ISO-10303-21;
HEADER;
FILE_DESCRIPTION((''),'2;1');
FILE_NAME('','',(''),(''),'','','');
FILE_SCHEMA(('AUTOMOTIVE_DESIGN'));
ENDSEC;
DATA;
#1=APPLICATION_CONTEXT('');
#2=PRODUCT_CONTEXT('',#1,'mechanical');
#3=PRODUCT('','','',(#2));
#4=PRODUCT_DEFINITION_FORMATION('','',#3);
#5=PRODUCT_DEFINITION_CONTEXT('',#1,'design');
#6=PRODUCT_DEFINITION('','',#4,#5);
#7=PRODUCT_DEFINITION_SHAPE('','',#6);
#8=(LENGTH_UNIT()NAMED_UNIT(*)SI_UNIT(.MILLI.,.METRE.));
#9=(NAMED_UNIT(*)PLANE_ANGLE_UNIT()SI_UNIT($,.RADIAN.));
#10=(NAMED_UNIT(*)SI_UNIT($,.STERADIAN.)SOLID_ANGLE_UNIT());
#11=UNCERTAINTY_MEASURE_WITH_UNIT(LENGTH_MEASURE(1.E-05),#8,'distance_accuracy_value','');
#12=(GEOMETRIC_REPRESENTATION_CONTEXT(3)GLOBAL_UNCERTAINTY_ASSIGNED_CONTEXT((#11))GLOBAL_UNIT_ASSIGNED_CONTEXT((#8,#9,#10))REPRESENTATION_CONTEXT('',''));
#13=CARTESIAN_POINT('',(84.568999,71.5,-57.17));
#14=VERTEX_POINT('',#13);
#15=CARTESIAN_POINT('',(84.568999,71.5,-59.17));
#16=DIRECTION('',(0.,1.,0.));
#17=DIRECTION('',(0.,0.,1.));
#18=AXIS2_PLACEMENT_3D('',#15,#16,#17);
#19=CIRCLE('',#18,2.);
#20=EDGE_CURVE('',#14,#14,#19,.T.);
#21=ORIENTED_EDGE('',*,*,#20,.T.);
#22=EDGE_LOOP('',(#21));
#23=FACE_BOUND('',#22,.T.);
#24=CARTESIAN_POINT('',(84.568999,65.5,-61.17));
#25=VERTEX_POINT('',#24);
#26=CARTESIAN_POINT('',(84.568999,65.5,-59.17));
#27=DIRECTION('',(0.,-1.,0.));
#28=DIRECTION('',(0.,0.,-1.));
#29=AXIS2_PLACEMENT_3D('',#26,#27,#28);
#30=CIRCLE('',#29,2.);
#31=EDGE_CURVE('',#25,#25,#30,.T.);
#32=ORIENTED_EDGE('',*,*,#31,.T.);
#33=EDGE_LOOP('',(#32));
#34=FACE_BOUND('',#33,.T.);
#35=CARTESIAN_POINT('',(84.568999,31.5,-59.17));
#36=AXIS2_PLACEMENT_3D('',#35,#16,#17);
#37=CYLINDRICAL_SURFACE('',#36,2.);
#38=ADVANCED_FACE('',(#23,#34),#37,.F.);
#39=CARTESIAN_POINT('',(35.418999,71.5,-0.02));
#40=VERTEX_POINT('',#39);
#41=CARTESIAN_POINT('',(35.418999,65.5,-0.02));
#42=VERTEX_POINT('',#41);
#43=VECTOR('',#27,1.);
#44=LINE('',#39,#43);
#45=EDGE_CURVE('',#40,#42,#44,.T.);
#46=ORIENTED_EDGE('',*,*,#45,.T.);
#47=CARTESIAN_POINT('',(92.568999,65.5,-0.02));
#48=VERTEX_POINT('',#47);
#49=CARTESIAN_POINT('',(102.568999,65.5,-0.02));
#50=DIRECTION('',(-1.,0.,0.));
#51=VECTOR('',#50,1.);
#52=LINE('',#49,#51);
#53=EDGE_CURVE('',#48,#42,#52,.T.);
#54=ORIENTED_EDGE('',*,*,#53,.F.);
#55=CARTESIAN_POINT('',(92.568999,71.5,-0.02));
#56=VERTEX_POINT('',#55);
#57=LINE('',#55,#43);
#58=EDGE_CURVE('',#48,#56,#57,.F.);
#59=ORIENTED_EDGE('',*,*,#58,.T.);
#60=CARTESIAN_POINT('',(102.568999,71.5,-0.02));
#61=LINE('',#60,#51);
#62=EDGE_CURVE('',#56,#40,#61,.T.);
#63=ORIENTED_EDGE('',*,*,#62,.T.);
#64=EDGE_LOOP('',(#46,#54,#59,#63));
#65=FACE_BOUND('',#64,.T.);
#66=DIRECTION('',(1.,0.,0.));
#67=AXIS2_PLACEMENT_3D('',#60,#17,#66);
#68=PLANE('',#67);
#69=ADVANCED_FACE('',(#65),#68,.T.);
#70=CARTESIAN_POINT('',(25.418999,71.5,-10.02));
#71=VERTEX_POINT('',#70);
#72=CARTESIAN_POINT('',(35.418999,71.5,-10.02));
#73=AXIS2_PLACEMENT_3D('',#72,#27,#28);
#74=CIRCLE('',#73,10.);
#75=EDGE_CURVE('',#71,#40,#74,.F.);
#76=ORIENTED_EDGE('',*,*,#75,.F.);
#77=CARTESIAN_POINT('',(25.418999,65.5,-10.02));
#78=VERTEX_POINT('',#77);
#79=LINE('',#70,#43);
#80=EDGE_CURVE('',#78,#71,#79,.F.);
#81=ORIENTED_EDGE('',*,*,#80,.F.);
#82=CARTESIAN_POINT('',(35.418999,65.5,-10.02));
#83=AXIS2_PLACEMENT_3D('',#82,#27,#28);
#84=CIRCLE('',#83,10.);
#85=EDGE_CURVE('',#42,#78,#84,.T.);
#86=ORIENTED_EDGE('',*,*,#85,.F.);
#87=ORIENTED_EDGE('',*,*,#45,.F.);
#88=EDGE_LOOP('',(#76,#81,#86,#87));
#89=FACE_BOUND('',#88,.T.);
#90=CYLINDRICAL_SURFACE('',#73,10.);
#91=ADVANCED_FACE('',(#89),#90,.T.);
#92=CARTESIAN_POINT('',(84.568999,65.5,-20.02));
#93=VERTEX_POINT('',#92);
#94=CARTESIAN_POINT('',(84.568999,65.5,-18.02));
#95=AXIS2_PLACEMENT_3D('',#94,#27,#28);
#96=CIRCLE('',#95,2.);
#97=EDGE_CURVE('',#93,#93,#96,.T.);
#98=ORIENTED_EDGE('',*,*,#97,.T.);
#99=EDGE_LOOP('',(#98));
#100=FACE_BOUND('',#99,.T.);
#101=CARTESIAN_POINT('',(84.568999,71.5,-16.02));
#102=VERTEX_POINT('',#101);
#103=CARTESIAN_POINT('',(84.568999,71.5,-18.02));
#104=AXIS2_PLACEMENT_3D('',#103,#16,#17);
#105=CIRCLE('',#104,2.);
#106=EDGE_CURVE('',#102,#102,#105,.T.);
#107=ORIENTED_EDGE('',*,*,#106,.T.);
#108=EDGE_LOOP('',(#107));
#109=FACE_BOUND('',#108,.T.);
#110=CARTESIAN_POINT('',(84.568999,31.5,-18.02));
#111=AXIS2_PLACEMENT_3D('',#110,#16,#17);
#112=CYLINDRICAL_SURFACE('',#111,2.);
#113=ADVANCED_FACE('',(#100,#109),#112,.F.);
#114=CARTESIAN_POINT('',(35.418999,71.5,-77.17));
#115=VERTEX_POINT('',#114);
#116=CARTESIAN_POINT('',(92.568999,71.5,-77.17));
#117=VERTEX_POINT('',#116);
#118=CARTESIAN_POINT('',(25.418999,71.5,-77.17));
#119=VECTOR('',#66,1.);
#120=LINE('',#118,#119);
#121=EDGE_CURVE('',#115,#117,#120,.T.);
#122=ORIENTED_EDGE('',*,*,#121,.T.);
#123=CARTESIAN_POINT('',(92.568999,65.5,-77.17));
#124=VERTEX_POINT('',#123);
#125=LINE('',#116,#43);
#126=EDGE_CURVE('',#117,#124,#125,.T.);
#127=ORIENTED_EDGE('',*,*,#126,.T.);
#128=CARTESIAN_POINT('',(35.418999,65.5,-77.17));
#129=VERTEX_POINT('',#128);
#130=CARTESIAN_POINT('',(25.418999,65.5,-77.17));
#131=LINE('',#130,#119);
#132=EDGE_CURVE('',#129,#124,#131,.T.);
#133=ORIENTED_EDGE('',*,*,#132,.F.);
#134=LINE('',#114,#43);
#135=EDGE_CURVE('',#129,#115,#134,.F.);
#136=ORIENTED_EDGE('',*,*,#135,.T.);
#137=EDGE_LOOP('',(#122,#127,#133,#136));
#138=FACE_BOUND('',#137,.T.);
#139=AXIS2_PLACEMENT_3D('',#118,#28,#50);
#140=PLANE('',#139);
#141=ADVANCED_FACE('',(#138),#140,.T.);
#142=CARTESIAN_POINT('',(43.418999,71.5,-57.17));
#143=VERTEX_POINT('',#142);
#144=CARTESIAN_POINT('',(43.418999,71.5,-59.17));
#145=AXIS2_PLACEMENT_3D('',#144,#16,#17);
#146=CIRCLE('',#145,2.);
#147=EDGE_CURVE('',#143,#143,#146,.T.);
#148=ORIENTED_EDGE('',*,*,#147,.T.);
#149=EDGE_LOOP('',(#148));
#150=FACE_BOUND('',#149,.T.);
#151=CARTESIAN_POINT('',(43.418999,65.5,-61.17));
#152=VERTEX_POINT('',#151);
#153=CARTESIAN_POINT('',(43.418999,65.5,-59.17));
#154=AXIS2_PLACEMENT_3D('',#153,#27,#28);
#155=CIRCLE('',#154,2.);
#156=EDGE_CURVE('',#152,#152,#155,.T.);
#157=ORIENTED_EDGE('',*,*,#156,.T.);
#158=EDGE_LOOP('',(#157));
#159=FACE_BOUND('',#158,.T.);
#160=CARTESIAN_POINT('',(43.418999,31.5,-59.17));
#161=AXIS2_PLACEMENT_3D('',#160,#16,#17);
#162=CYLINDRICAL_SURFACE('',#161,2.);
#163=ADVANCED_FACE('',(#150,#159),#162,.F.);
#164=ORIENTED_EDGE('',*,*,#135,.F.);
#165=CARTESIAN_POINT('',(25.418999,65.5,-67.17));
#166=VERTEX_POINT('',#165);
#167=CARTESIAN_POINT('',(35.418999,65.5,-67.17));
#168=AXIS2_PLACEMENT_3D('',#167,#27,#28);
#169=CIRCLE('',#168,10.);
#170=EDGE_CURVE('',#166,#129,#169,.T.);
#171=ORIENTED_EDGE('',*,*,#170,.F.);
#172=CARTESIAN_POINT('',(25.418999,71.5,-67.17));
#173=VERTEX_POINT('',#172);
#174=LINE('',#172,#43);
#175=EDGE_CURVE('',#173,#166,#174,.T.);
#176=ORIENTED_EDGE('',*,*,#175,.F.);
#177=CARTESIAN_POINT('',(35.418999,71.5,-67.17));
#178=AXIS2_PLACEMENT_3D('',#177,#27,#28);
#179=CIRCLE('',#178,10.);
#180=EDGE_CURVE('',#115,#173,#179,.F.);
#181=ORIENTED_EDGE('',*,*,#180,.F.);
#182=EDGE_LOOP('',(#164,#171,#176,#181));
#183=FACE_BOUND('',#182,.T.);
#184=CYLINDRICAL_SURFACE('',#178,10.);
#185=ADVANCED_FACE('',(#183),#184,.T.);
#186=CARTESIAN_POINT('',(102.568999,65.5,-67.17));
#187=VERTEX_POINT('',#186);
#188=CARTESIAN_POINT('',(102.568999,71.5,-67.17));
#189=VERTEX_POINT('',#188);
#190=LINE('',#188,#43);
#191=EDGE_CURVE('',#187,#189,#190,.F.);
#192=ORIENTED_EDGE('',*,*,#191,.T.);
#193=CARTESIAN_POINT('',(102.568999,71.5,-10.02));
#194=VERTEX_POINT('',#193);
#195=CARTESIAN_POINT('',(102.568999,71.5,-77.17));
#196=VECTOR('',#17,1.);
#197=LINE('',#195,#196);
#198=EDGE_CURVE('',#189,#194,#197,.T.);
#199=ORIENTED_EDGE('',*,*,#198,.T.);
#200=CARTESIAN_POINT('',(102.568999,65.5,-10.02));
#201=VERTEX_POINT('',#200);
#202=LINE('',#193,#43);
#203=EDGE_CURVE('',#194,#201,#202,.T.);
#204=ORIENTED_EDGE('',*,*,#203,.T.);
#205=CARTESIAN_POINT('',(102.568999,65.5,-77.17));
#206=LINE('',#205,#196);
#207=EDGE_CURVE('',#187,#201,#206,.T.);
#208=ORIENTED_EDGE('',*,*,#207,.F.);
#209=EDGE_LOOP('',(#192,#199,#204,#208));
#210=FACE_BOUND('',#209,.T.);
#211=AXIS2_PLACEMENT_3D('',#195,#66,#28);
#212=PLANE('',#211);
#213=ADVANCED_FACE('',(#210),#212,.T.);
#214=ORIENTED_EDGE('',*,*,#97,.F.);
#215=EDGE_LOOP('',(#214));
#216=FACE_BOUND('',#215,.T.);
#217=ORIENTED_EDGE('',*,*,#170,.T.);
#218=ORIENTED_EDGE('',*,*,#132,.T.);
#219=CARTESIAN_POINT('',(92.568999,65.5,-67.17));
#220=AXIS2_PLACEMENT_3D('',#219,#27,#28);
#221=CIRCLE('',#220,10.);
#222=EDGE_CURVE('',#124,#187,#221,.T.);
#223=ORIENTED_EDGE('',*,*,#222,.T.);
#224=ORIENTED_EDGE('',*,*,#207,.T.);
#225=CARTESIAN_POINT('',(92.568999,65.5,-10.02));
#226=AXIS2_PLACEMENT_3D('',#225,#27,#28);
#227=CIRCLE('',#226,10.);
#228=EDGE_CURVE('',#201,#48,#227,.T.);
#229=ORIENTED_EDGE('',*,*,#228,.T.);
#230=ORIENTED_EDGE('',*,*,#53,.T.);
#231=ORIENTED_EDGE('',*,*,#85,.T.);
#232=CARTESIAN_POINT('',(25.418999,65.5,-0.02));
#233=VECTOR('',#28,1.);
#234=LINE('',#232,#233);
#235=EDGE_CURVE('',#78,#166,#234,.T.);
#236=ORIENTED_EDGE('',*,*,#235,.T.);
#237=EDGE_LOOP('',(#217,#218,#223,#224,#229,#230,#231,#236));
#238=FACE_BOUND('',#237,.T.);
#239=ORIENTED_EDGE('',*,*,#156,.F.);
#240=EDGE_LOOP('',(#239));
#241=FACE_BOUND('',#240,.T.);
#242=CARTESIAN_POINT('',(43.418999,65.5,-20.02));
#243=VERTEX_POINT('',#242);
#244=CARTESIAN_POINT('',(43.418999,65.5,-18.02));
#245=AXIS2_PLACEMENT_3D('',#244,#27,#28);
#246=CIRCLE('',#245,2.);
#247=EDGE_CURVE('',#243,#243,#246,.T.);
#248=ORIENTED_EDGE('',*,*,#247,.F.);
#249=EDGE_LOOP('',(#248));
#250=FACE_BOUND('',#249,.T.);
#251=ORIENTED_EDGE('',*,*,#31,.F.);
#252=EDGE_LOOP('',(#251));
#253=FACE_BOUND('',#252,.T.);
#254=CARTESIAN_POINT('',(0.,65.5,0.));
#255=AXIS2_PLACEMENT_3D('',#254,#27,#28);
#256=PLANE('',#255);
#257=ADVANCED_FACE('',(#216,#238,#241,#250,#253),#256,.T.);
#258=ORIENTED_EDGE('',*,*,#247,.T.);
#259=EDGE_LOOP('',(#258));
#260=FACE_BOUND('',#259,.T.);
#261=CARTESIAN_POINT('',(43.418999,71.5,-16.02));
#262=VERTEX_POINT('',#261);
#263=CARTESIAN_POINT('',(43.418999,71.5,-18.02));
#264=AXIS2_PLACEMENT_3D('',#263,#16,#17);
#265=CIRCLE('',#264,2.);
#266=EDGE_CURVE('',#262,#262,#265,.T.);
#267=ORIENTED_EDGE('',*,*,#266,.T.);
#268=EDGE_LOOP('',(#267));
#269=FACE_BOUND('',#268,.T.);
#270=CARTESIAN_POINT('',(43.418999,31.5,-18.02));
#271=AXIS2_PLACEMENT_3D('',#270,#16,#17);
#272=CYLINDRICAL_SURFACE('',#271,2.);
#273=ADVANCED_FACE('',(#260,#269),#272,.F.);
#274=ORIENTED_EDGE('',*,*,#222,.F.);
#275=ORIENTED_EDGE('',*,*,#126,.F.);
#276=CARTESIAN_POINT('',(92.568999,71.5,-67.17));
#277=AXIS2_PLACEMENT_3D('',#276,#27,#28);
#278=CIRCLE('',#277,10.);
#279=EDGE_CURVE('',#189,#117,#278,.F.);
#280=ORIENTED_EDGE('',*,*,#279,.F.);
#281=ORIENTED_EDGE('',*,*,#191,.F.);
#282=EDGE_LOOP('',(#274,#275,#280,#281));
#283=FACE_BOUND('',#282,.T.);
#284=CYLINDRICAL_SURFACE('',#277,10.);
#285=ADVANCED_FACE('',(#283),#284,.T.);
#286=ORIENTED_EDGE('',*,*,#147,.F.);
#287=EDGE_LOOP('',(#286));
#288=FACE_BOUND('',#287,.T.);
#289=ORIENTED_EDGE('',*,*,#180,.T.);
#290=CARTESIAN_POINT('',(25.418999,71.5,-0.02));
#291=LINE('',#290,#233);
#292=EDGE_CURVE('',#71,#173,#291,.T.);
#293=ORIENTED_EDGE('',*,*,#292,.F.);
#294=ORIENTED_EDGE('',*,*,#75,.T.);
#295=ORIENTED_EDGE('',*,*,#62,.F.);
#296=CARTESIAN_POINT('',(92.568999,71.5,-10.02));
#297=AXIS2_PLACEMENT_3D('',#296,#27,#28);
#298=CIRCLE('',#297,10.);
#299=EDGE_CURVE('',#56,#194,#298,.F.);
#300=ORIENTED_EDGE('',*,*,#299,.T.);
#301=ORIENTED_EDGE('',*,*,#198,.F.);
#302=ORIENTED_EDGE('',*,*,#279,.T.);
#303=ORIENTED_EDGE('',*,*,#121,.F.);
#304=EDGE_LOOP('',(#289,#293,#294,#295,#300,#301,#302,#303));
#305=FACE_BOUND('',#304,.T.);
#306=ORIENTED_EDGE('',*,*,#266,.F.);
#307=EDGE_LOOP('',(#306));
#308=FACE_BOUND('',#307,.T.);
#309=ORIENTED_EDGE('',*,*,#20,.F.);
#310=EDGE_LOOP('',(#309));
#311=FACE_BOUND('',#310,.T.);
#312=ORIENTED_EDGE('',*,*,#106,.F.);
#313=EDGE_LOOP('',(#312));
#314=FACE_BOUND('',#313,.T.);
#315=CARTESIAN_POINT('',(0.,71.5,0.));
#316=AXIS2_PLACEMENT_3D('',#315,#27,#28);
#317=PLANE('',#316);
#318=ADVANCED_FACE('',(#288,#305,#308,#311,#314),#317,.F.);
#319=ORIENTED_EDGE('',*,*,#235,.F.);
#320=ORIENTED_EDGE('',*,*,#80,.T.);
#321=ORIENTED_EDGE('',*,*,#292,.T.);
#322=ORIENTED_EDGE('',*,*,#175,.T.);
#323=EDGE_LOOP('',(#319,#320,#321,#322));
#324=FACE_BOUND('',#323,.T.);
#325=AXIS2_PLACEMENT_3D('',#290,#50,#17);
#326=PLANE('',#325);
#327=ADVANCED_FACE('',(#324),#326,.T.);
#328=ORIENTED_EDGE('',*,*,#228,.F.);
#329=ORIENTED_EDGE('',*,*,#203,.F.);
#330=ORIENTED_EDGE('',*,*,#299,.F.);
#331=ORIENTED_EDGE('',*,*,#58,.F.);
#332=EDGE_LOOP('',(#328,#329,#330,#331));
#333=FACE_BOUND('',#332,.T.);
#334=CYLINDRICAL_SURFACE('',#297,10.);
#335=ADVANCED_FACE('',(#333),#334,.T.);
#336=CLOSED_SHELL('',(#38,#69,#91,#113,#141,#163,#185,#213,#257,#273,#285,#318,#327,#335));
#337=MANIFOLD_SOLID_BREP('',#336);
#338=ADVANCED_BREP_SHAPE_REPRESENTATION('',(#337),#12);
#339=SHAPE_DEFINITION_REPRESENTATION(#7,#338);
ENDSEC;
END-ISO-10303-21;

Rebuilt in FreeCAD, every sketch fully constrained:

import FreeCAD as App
import Part
import Sketcher

V = App.Vector


def edges_at(feature, points):
    """Names of the edges that pass closest to the given points."""
    edges = feature.Shape.Edges
    near = lambda p: min(range(len(edges)), key=lambda i: edges[i].distToShape(Part.Vertex(*p))[0])
    return sorted({f"Edge{near(p) + 1}" for p in points})


def add_polygon(sketch, points):
    """Adds a closed chain of lines whose ends are joined by coincident constraints."""
    first, n = sketch.GeometryCount, len(points)
    for a, b in zip(points, points[1:] + points[:1]):
        sketch.addGeometry(Part.LineSegment(App.Vector(*a, 0), App.Vector(*b, 0)), False)
    for i in range(n):
        sketch.addConstraint(Sketcher.Constraint("Coincident", first + i, 2, first + (i + 1) % n, 1))

doc = App.newDocument("Part")
body = doc.addObject("PartDesign::Body", "Body")

sketch1 = body.newObject("Sketcher::SketchObject", "Sketch")
sketch1.AttachmentSupport = (doc.getObject("XZ_Plane"), [""])
sketch1.MapMode = "FlatFace"
sketch1.AttachmentOffset = App.Placement(V(0, 0, -65.5), App.Rotation())
add_polygon(sketch1, [(25.418999, -0.02), (25.418999, -77.17), (102.568999, -77.17), (102.568999, -0.02)])
sketch1.addConstraint(Sketcher.Constraint("Vertical", 0))
sketch1.addConstraint(Sketcher.Constraint("Horizontal", 1))
sketch1.addConstraint(Sketcher.Constraint("Vertical", 2))
sketch1.addConstraint(Sketcher.Constraint("Horizontal", 3))
sketch1.addConstraint(Sketcher.Constraint("Equal", 3, 0))
sketch1.addConstraint(Sketcher.Constraint("DistanceX", 1, 1, 1, 2, 77.15))
sketch1.addConstraint(Sketcher.Constraint("DistanceY", 0, 2, -1, 1, 77.17))
sketch1.addConstraint(Sketcher.Constraint("DistanceX", -1, 1, 0, 2, 25.418999))
pad1 = body.newObject("PartDesign::Pad", "Pad")
pad1.Profile = sketch1
pad1.Length = 6
pad1.Reversed = True

sketch2 = body.newObject("Sketcher::SketchObject", "Sketch001")
sketch2.AttachmentSupport = (doc.getObject("XZ_Plane"), [""])
sketch2.MapMode = "FlatFace"
sketch2.AttachmentOffset = App.Placement(V(0, 0, -71.5), App.Rotation())
sketch2.addGeometry(Part.Circle(V(84.568999, -59.17, 0), V(0, 0, 1), 2), False)
sketch2.addGeometry(Part.Circle(V(84.568999, -18.02, 0), V(0, 0, 1), 2), False)
sketch2.addGeometry(Part.Circle(V(43.418999, -18.02, 0), V(0, 0, 1), 2), False)
sketch2.addGeometry(Part.Circle(V(43.418999, -59.17, 0), V(0, 0, 1), 2), False)
sketch2.addConstraint(Sketcher.Constraint("Equal", 0, 1))
sketch2.addConstraint(Sketcher.Constraint("Equal", 1, 2))
sketch2.addConstraint(Sketcher.Constraint("Equal", 2, 3))
sketch2.addConstraint(Sketcher.Constraint("Horizontal", 1, 3, 2, 3))
sketch2.addConstraint(Sketcher.Constraint("Horizontal", 0, 3, 3, 3))
sketch2.addConstraint(Sketcher.Constraint("Vertical", 0, 3, 1, 3))
sketch2.addConstraint(Sketcher.Constraint("Vertical", 2, 3, 3, 3))
sketch2.addConstraint(Sketcher.Constraint("Diameter", 0, 4.0))
sketch2.addConstraint(Sketcher.Constraint("DistanceY", 0, 3, -1, 1, 59.17))
sketch2.addConstraint(Sketcher.Constraint("DistanceY", 1, 3, -1, 1, 18.02))
sketch2.addConstraint(Sketcher.Constraint("DistanceX", 2, 3, 1, 3, 41.15))
sketch2.addConstraint(Sketcher.Constraint("DistanceX", -1, 1, 0, 3, 84.568999))
pocket1 = body.newObject("PartDesign::Pocket", "Pocket")
pocket1.Profile = sketch2
pocket1.Length = 40
pocket1.Reversed = True
doc.recompute()

fillet = body.newObject("PartDesign::Fillet", "Fillet")
fillet.Base = (pocket1, edges_at(pocket1, [
    (25.419, 68.5, -0.02),
    (102.569, 68.5, -0.02),
    (102.569, 68.5, -77.17),
    (25.419, 68.5, -77.17),
]))
fillet.Radius = 10

doc.recompute()
